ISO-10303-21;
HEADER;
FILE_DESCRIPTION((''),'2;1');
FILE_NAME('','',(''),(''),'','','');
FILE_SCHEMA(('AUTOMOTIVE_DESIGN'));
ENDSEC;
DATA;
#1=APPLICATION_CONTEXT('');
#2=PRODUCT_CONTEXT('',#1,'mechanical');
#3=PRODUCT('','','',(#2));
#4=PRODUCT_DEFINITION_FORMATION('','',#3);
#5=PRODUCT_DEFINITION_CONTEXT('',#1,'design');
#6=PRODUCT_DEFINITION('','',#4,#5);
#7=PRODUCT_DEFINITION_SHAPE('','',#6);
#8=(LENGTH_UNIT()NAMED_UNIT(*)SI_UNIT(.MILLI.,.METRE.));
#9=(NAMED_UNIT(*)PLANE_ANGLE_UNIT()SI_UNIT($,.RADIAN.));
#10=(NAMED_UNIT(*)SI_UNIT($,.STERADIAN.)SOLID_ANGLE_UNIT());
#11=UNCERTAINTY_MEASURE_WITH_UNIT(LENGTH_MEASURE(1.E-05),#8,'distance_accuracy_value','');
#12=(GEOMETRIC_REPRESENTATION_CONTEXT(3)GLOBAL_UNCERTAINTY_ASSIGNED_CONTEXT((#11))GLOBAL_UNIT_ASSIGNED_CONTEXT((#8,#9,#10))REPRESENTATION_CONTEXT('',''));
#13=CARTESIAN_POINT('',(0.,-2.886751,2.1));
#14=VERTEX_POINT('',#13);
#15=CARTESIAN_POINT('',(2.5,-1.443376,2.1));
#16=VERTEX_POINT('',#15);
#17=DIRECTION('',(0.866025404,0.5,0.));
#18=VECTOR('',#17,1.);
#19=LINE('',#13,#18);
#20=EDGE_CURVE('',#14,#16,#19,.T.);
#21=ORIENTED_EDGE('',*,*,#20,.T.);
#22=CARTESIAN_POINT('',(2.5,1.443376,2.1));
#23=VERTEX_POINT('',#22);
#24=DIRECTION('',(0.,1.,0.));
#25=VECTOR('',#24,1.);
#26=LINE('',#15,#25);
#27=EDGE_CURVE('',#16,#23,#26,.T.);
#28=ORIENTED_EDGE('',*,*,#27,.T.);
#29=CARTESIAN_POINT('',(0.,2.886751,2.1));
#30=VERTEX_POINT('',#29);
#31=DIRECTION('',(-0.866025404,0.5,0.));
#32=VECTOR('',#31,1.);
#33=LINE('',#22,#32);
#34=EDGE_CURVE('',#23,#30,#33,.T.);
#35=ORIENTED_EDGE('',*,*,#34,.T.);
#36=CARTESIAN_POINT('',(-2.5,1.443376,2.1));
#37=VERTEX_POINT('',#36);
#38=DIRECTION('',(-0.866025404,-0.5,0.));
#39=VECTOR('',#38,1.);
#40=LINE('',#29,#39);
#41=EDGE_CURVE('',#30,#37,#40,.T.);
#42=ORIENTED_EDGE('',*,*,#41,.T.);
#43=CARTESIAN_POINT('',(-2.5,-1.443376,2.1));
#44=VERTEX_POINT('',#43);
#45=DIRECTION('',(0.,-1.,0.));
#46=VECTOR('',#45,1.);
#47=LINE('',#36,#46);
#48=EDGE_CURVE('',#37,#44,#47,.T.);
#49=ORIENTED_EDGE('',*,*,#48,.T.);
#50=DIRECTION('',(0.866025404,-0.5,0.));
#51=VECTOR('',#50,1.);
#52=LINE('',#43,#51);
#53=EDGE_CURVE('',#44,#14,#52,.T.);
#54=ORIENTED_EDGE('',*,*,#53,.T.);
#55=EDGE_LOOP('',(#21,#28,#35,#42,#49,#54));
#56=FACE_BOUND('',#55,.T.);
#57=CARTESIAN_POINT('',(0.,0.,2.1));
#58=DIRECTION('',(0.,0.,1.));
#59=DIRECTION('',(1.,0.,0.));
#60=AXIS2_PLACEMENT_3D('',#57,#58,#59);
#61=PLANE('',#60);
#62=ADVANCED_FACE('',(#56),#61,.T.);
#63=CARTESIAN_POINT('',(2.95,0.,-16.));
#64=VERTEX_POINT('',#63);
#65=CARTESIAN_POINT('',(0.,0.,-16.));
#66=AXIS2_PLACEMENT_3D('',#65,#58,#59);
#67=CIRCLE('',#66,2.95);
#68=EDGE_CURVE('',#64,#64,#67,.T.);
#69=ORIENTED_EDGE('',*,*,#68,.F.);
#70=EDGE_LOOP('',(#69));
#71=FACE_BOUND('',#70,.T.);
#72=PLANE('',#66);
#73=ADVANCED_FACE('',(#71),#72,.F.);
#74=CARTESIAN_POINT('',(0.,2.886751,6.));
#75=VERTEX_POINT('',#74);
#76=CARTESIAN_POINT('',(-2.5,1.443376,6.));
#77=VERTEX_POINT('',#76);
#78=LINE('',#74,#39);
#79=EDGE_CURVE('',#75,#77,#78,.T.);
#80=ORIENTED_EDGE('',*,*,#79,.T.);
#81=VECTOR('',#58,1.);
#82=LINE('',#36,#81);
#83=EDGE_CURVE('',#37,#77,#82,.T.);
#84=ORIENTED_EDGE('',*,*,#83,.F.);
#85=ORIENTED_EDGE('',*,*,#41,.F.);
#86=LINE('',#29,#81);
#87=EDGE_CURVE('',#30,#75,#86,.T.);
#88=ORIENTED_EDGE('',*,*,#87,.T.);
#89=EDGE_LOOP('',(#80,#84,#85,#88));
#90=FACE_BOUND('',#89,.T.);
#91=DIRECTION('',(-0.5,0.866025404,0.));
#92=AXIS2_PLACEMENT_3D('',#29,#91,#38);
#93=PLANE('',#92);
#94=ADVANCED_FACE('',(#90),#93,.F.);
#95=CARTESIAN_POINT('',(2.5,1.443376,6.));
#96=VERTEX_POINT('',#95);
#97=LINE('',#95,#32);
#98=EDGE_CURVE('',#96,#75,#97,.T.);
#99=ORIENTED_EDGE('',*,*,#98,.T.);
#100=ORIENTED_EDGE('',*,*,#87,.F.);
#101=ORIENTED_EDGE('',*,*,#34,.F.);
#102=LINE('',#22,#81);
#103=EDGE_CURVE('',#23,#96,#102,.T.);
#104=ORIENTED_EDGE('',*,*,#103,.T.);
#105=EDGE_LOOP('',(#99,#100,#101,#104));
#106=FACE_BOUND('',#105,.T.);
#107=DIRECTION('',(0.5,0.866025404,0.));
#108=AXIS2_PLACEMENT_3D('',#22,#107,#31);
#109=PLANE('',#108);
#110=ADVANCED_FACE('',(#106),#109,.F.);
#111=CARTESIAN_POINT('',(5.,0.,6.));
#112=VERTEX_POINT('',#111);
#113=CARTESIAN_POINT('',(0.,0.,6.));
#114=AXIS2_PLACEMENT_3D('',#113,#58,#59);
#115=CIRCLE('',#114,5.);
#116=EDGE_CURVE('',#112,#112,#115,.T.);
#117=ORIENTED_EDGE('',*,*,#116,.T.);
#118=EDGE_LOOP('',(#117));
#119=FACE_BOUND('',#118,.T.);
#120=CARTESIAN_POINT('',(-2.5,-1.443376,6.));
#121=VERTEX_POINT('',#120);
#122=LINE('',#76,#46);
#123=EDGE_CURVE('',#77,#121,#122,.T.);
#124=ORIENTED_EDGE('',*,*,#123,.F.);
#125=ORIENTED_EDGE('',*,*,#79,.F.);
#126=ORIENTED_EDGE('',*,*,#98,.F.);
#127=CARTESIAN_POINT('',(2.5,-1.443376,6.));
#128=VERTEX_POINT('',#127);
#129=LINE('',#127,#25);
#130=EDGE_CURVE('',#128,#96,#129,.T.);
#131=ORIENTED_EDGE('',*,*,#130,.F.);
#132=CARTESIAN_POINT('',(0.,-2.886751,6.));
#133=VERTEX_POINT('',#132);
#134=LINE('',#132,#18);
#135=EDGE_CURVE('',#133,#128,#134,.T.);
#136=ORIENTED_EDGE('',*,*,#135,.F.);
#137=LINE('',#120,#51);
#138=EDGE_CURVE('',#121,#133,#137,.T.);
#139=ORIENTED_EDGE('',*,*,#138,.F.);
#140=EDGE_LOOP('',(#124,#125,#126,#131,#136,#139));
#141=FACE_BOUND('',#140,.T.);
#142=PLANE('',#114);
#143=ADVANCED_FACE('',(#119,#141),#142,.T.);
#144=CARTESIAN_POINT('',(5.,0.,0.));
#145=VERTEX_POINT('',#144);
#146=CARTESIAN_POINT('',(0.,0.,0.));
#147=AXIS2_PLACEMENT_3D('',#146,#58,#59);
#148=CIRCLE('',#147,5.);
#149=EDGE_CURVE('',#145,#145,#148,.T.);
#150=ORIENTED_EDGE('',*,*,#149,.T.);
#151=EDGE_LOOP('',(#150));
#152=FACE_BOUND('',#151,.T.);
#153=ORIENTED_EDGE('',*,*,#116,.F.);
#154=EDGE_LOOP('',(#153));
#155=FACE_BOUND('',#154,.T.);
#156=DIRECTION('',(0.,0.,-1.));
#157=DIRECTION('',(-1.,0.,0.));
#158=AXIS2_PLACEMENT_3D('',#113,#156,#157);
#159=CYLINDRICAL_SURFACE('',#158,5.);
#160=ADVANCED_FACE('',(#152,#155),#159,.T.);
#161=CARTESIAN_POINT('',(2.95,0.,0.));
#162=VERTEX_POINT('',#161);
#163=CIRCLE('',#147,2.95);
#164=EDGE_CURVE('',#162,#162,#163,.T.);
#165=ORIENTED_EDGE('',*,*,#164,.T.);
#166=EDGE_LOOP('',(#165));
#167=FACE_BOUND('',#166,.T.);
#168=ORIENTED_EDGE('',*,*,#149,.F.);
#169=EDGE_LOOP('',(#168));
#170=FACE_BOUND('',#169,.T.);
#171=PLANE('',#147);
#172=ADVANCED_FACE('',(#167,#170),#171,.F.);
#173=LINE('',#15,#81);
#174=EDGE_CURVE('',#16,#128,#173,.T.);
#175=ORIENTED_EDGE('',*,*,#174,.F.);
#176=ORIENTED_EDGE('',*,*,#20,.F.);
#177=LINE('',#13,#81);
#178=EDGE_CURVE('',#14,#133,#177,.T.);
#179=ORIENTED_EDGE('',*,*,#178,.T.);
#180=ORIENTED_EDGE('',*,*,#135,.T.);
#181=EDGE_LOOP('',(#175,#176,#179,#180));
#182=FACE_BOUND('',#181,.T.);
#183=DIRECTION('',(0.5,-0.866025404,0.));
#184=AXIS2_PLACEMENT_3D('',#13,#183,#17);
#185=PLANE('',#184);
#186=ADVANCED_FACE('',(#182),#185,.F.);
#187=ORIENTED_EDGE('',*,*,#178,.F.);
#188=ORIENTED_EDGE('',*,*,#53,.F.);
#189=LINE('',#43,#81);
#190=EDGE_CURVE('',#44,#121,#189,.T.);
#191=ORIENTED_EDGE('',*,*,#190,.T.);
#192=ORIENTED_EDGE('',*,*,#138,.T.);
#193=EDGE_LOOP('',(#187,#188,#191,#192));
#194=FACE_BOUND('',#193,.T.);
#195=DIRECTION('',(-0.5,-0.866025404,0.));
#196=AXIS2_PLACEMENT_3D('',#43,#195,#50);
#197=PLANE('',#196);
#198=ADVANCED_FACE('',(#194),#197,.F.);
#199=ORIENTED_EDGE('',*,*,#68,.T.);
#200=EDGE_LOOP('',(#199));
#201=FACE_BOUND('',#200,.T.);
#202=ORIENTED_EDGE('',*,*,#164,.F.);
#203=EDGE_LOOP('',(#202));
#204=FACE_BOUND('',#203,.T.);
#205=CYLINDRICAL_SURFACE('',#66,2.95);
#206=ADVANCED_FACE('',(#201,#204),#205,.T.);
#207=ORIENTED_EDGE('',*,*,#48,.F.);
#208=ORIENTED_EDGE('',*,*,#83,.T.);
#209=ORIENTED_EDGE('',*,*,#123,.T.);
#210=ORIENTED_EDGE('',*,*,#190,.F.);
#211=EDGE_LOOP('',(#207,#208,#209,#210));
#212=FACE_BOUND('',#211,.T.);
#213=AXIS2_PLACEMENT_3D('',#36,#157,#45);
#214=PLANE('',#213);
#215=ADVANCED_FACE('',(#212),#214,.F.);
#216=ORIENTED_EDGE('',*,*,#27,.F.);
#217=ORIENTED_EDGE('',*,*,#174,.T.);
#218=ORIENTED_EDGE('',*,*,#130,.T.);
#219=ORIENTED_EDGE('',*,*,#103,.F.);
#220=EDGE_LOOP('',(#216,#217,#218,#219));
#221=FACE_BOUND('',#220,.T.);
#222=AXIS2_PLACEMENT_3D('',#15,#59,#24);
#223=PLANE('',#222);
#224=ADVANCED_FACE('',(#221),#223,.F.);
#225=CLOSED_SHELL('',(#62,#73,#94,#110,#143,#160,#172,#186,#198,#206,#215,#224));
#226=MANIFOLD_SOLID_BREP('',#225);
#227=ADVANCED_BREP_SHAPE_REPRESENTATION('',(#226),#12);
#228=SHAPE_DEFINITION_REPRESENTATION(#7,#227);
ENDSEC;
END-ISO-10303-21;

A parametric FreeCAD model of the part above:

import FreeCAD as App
import Part
import Sketcher

V = App.Vector
Q = App.Units.Quantity


def add_polygon(sketch, points):
    """Adds a closed chain of lines whose ends are joined by coincident constraints."""
    first, n = sketch.GeometryCount, len(points)
    for a, b in zip(points, points[1:] + points[:1]):
        sketch.addGeometry(Part.LineSegment(App.Vector(*a, 0), App.Vector(*b, 0)), False)
    for i in range(n):
        sketch.addConstraint(Sketcher.Constraint("Coincident", first + i, 2, first + (i + 1) % n, 1))

doc = App.newDocument("Part")
body = doc.addObject("PartDesign::Body", "Body")

# Sketch on XY plane
sketch1 = doc.addObject("Sketcher::SketchObject", "Sketch")
body.addObject(sketch1)
sketch1.AttachmentSupport = (doc.XY_Plane, [""])
sketch1.MapMode = "FlatFace"
sketch1.addGeometry(Part.Circle(V(0, 0, 0), V(0, 0, 1), 3), False)
sketch1.addConstraint([
    Sketcher.Constraint("Coincident", 0, 3, -1, 1),
    Sketcher.Constraint("Diameter", 0, 5.9),
])
pad1 = doc.addObject("PartDesign::Pad", "Pad")
body.addObject(pad1)
pad1.Profile = sketch1
pad1.Length = 16
pad1.Reversed = True

# Sketch on XY plane
sketch2 = doc.addObject("Sketcher::SketchObject", "Sketch001")
body.addObject(sketch2)
sketch2.AttachmentSupport = (doc.XY_Plane, [""])
sketch2.MapMode = "FlatFace"
sketch2.addGeometry(Part.Circle(V(0, 0, 0), V(0, 0, 1), 5), False)
sketch2.addConstraint([
    Sketcher.Constraint("Coincident", 0, 3, -1, 1),
    Sketcher.Constraint("Diameter", 0, 10.0),
])
pad2 = doc.addObject("PartDesign::Pad", "Pad001")
body.addObject(pad2)
pad2.Profile = sketch2
pad2.Length = 6

# Sketch on XY plane
sketch3 = doc.addObject("Sketcher::SketchObject", "Sketch002")
body.addObject(sketch3)
sketch3.AttachmentSupport = (doc.XY_Plane, [""])
sketch3.MapMode = "FlatFace"
sketch3.AttachmentOffset = App.Placement(V(0, 0, 6), App.Rotation())
add_polygon(sketch3, [(2.5, 1.4), (0, 2.9), (-2.5, 1.4), (-2.5, -1.4), (0, -2.9), (2.5, -1.4)])  # lines 0-5
sketch3.addConstraint([
    Sketcher.Constraint("Vertical", 2),
    Sketcher.Constraint("Vertical", 5),
    Sketcher.Constraint("Symmetric", 0, 2, 3, 2, -1, 1),
    Sketcher.Constraint("Symmetric", 1, 2, 4, 2, -1, 1),
    Sketcher.Constraint("PointOnObject", 0, 2, -2),
    Sketcher.Constraint("Parallel", 0, 3),
    Sketcher.Constraint("Horizontal", 2, 2, 4, 2),
    Sketcher.Constraint("Angle", 0, Q("150 deg")),
    Sketcher.Constraint("DistanceX", 2, 2, 4, 2, 5.0),
    Sketcher.Constraint("DistanceY", 2, 2, 2, 1, 2.886751),
])
pocket1 = doc.addObject("PartDesign::Pocket", "Pocket")
body.addObject(pocket1)
pocket1.Profile = sketch3
pocket1.Length = 3.9

doc.recompute()
